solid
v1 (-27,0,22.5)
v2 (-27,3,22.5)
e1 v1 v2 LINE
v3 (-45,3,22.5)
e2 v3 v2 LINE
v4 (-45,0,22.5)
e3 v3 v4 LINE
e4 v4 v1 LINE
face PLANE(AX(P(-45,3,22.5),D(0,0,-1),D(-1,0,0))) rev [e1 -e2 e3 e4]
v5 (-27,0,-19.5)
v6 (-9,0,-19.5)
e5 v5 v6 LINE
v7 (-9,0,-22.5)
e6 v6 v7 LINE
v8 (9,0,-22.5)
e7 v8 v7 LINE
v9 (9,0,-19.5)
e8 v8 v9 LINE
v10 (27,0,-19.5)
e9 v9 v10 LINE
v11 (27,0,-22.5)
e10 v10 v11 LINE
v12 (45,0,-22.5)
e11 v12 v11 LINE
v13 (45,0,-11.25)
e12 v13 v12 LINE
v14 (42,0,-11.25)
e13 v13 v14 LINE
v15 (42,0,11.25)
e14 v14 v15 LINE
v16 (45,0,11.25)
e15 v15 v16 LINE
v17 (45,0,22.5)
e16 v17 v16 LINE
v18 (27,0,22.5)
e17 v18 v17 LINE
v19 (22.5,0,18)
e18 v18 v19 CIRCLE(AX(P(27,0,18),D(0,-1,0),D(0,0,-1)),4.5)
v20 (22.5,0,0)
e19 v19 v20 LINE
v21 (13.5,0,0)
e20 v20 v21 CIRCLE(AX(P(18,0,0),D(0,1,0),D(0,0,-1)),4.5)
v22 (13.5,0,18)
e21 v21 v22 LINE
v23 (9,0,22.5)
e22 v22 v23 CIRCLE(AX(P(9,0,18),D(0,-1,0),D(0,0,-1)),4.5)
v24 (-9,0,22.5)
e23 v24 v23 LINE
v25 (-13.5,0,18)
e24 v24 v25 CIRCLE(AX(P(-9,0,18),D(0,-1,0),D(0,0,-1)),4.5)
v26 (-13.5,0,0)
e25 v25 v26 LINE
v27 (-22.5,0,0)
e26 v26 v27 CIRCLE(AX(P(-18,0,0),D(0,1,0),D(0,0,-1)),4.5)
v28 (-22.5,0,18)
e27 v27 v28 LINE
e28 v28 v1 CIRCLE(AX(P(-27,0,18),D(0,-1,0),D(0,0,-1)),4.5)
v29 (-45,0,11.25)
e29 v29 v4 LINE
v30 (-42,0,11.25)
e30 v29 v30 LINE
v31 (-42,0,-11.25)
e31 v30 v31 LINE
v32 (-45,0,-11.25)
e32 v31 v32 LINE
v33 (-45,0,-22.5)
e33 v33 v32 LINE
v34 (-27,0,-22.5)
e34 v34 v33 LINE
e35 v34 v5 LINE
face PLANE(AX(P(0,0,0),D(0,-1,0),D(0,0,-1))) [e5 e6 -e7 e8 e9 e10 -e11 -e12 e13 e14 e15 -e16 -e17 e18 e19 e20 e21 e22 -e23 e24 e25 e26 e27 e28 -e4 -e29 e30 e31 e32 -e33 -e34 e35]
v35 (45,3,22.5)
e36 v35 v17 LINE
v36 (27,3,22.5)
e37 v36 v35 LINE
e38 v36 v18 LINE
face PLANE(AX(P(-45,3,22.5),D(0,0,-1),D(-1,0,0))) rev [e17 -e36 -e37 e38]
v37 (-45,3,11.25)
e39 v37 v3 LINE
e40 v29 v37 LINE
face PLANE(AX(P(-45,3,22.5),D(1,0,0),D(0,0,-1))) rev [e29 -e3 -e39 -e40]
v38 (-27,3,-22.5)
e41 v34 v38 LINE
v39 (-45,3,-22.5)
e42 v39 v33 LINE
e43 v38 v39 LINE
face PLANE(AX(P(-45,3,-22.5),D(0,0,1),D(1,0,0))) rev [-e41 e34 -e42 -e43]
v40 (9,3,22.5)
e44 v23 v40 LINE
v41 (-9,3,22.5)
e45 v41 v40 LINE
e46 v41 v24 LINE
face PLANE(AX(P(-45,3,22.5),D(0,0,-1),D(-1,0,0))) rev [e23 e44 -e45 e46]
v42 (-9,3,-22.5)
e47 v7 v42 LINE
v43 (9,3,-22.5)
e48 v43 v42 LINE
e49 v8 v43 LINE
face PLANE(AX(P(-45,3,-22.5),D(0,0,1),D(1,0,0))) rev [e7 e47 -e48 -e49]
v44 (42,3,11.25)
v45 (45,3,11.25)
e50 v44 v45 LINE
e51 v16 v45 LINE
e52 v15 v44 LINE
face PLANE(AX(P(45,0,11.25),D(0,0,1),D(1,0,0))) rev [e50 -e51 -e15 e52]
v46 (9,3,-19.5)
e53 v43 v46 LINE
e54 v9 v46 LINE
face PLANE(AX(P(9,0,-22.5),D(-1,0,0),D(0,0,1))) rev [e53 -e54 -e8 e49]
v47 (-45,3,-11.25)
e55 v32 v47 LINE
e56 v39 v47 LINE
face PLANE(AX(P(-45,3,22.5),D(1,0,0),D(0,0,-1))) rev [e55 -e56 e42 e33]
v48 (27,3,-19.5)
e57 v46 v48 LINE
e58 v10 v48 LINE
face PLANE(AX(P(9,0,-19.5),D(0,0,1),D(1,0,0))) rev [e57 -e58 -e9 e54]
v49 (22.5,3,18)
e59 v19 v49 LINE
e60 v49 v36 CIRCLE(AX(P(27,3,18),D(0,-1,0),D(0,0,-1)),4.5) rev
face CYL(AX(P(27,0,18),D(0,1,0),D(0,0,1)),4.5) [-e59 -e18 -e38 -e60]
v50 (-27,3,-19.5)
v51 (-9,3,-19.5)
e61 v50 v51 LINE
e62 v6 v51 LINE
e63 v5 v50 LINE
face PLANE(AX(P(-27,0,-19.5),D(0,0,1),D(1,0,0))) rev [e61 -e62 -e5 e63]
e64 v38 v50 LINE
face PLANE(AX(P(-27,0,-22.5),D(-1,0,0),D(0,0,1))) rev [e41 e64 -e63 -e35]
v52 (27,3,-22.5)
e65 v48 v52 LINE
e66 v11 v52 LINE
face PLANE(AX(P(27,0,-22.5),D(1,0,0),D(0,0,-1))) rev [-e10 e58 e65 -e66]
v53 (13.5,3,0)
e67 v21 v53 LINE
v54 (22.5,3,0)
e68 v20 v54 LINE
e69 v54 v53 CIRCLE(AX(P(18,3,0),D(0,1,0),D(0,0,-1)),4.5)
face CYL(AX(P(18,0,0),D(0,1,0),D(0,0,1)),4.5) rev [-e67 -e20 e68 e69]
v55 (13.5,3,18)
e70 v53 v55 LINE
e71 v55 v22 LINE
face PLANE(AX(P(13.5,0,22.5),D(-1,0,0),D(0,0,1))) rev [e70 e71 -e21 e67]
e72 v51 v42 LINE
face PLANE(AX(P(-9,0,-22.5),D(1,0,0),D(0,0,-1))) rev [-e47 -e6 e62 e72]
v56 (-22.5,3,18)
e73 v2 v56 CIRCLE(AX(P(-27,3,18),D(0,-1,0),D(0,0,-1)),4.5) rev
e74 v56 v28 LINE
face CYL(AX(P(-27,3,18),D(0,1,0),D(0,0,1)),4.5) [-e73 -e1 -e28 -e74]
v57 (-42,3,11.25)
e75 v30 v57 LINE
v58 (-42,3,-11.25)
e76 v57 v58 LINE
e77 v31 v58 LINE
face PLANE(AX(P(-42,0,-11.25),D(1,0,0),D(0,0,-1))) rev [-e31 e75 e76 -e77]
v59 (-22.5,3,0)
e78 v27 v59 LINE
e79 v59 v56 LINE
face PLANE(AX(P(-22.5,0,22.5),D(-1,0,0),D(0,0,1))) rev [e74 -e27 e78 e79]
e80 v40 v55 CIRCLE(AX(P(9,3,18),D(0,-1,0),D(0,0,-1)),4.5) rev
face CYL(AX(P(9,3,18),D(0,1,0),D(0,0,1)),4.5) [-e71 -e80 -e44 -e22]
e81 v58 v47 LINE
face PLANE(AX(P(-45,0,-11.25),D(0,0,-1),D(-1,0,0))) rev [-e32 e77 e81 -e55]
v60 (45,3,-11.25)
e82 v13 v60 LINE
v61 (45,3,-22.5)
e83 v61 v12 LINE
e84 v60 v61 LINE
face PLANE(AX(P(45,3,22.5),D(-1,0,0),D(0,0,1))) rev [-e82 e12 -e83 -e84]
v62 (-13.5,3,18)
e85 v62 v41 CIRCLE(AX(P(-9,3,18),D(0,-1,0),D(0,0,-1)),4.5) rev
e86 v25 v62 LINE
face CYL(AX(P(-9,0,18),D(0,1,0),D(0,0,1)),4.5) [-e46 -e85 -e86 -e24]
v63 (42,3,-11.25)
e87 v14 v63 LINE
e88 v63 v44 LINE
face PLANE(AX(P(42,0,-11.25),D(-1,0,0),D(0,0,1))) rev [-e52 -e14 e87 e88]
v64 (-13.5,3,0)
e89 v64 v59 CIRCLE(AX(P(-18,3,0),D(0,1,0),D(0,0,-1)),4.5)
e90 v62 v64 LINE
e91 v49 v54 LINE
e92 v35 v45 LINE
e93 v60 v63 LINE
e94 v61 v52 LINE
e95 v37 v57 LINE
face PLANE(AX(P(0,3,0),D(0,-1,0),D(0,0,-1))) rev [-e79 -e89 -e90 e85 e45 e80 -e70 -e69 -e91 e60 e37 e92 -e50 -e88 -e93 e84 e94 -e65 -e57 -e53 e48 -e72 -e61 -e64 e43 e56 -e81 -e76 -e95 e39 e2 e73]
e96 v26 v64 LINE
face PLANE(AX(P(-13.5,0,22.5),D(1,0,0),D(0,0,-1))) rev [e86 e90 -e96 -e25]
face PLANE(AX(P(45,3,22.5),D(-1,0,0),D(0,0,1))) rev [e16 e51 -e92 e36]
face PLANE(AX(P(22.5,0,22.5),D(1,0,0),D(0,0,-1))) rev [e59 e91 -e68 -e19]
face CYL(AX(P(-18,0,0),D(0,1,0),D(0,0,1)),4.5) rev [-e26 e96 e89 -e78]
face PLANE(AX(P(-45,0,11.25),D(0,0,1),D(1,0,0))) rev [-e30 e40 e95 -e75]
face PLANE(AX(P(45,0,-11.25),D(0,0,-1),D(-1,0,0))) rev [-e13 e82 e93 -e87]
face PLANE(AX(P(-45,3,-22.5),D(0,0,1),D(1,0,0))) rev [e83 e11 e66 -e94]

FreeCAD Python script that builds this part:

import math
import FreeCAD as App
import Part
import Sketcher

V = App.Vector
Q = App.Units.Quantity


def edges_at(feature, points):
    """Names of the edges that pass closest to the given points."""
    edges = feature.Shape.Edges
    near = lambda p: min(range(len(edges)), key=lambda i: edges[i].distToShape(Part.Vertex(*p))[0])
    return sorted({f"Edge{near(p) + 1}" for p in points})

doc = App.newDocument("Part")
body = doc.addObject("PartDesign::Body", "Body")

sketch1 = doc.addObject("Sketcher::SketchObject", "Sketch")
body.addObject(sketch1)
sketch1.AttachmentSupport = (doc.XZ_Plane, [""])
sketch1.MapMode = "FlatFace"
sketch1.addGeometry([
    Part.LineSegment(V(-45, -22, 0), V(-45, 22, 0)),
    Part.LineSegment(V(-45, 22, 0), V(45, 22, 0)),
    Part.LineSegment(V(45, 22, 0), V(45, -22, 0)),
    Part.LineSegment(V(45, -22, 0), V(-45, -22, 0)),
], False)
sketch1.addConstraint([
    Sketcher.Constraint("Coincident", 0, 2, 1, 1),
    Sketcher.Constraint("Coincident", 1, 2, 2, 1),
    Sketcher.Constraint("Coincident", 2, 2, 3, 1),
    Sketcher.Constraint("Coincident", 3, 2, 0, 1),
    Sketcher.Constraint("Vertical", 0),
    Sketcher.Constraint("Horizontal", 1),
    Sketcher.Constraint("Vertical", 2),
    Sketcher.Constraint("Horizontal", 3),
    Sketcher.Constraint("Symmetric", 0, 2, 2, 2, -1, 1),
    Sketcher.Constraint("DistanceX", 1, 1, 1, 2, Q("90 mm")),
    Sketcher.Constraint("DistanceY", 0, 1, 0, 2, Q("45 mm")),
])
pad1 = doc.addObject("PartDesign::Pad", "Pad")
body.addObject(pad1)
pad1.Profile = sketch1
pad1.Length = 3
pad1.Reversed = True

sketch2 = doc.addObject("Sketcher::SketchObject", "Sketch001")
body.addObject(sketch2)
sketch2.AttachmentSupport = (doc.XZ_Plane, [""])
sketch2.MapMode = "FlatFace"
sketch2.AttachmentOffset = App.Placement(V(0, 0, -3), App.Rotation())
sketch2.addGeometry([
    Part.LineSegment(V(-22.5, 22.5, 0), V(-13.5, 22.5, 0)),
    Part.LineSegment(V(-13.5, 22.5, 0), V(-13.5, 0, 0)),
    Part.ArcOfCircle(Part.Circle(V(-18, 0, 0), V(0, 0, 1), 4.5), math.radians(180), math.radians(360)),
    Part.LineSegment(V(-22.5, 0, 0), V(-22.5, 22.5, 0)),
    Part.LineSegment(V(13.5, 22.5, 0), V(22.5, 22.5, 0)),
    Part.LineSegment(V(22.5, 22.5, 0), V(22.5, 0, 0)),
    Part.ArcOfCircle(Part.Circle(V(18, 0, 0), V(0, 0, 1), 4.5), math.radians(180), math.radians(360)),
    Part.LineSegment(V(13.5, 0, 0), V(13.5, 22.5, 0)),
], False)
sketch2.addConstraint([
    Sketcher.Constraint("Coincident", 0, 2, 1, 1),
    Sketcher.Constraint("Tangent", 1, 2, 2, 2),
    Sketcher.Constraint("Tangent", 2, 1, 3, 1),
    Sketcher.Constraint("Coincident", 3, 2, 0, 1),
    Sketcher.Constraint("Coincident", 4, 2, 5, 1),
    Sketcher.Constraint("Tangent", 5, 2, 6, 2),
    Sketcher.Constraint("Tangent", 6, 1, 7, 1),
    Sketcher.Constraint("Coincident", 7, 2, 4, 1),
    Sketcher.Constraint("Horizontal", 0),
    Sketcher.Constraint("Vertical", 1),
    Sketcher.Constraint("Vertical", 3),
    Sketcher.Constraint("Horizontal", 4),
    Sketcher.Constraint("Vertical", 5),
    Sketcher.Constraint("Vertical", 7),
    Sketcher.Constraint("Equal", 2, 6),
    Sketcher.Constraint("Symmetric", 2, 3, 6, 3, -1, 1),
    Sketcher.Constraint("PointOnObject", 2, 3, -1),
    Sketcher.Constraint("Horizontal", 3, 2, 4, 2),
    Sketcher.Constraint("Radius", 2, Q("4.5 mm")),
    Sketcher.Constraint("DistanceY", 1, 2, 1, 1, Q("22.5 mm")),
    Sketcher.Constraint("DistanceX", 2, 3, -1, 1, Q("18 mm")),
])
pocket1 = doc.addObject("PartDesign::Pocket", "Pocket")
body.addObject(pocket1)
pocket1.Profile = sketch2
pocket1.Length = 3
pocket1.Reversed = True
doc.recompute()

fillet = doc.addObject("PartDesign::Fillet", "Fillet")
body.addObject(fillet)
fillet.Base = (pocket1, edges_at(pocket1, [
    (-22.5, 1.5, 22.5),
    (-13.5, 1.5, 22.5),
    (13.5, 1.5, 22.5),
    (22.5, 1.5, 22.5),
]))
fillet.Radius = 4.5

sketch3 = doc.addObject("Sketcher::SketchObject", "Sketch002")
body.addObject(sketch3)
sketch3.AttachmentSupport = (doc.XZ_Plane, [""])
sketch3.MapMode = "FlatFace"
sketch3.AttachmentOffset = App.Placement(V(0, 0, -3), App.Rotation())
sketch3.addGeometry([
    Part.LineSegment(V(-45, -11.2, 0), V(-45, 11.2, 0)),
    Part.LineSegment(V(-45, 11.2, 0), V(-42, 11.2, 0)),
    Part.LineSegment(V(-42, 11.2, 0), V(-42, -11.2, 0)),
    Part.LineSegment(V(-42, -11.2, 0), V(-45, -11.2, 0)),
    Part.LineSegment(V(-27, -22.5, 0), V(-27, -19.5, 0)),
    Part.LineSegment(V(-27, -19.5, 0), V(-9, -19.5, 0)),
    Part.LineSegment(V(-9, -19.5, 0), V(-9, -22.5, 0)),
    Part.LineSegment(V(-9, -22.5, 0), V(-27, -22.5, 0)),
    Part.LineSegment(V(9, -22.5, 0), V(9, -19.5, 0)),
    Part.LineSegment(V(9, -19.5, 0), V(27, -19.5, 0)),
    Part.LineSegment(V(27, -19.5, 0), V(27, -22.5, 0)),
    Part.LineSegment(V(27, -22.5, 0), V(9, -22.5, 0)),
    Part.LineSegment(V(42, -11.2, 0), V(42, 11.2, 0)),
    Part.LineSegment(V(42, 11.2, 0), V(45, 11.2, 0)),
    Part.LineSegment(V(45, 11.2, 0), V(45, -11.2, 0)),
    Part.LineSegment(V(45, -11.2, 0), V(42, -11.2, 0)),
], False)
sketch3.addConstraint([
    Sketcher.Constraint("Coincident", 0, 2, 1, 1),
    Sketcher.Constraint("Coincident", 1, 2, 2, 1),
    Sketcher.Constraint("Coincident", 2, 2, 3, 1),
    Sketcher.Constraint("Coincident", 3, 2, 0, 1),
    Sketcher.Constraint("Coincident", 4, 2, 5, 1),
    Sketcher.Constraint("Coincident", 5, 2, 6, 1),
    Sketcher.Constraint("Coincident", 6, 2, 7, 1),
    Sketcher.Constraint("Coincident", 7, 2, 4, 1),
    Sketcher.Constraint("Coincident", 8, 2, 9, 1),
    Sketcher.Constraint("Coincident", 9, 2, 10, 1),
    Sketcher.Constraint("Coincident", 10, 2, 11, 1),
    Sketcher.Constraint("Coincident", 11, 2, 8, 1),
    Sketcher.Constraint("Coincident", 12, 2, 13, 1),
    Sketcher.Constraint("Coincident", 13, 2, 14, 1),
    Sketcher.Constraint("Coincident", 14, 2, 15, 1),
    Sketcher.Constraint("Coincident", 15, 2, 12, 1),
    Sketcher.Constraint("Vertical", 0),
    Sketcher.Constraint("Horizontal", 1),
    Sketcher.Constraint("Vertical", 2),
    Sketcher.Constraint("Horizontal", 3),
    Sketcher.Constraint("Vertical", 4),
    Sketcher.Constraint("Horizontal", 5),
    Sketcher.Constraint("Vertical", 6),
    Sketcher.Constraint("Horizontal", 7),
    Sketcher.Constraint("Vertical", 8),
    Sketcher.Constraint("Horizontal", 9),
    Sketcher.Constraint("Vertical", 10),
    Sketcher.Constraint("Horizontal", 11),
    Sketcher.Constraint("Vertical", 12),
    Sketcher.Constraint("Horizontal", 13),
    Sketcher.Constraint("Vertical", 14),
    Sketcher.Constraint("Horizontal", 15),
    Sketcher.Constraint("Symmetric", 2, 2, 12, 2, -1, 1),
    Sketcher.Constraint("Symmetric", 0, 2, 14, 2, -1, 1),
    Sketcher.Constraint("Symmetric", 5, 2, 8, 2, -2),
    Sketcher.Constraint("Symmetric", 7, 2, 10, 2, -2),
    Sketcher.Constraint("Horizontal", 1, 2, 12, 2),
    Sketcher.Constraint("Equal", 15, 4),
    Sketcher.Constraint("DistanceX", 1, 1, 1, 2, Q("3 mm")),
    Sketcher.Constraint("DistanceX", 5, 1, 5, 2, Q("18 mm")),
    Sketcher.Constraint("DistanceY", 0, 1, 0, 2, Q("22.5 mm")),
    Sketcher.Constraint("DistanceX", 0, 2, -1, 1, Q("45 mm")),
    Sketcher.Constraint("DistanceX", 4, 2, -1, 1, Q("27 mm")),
    Sketcher.Constraint("DistanceY", 4, 2, -1, 1, Q("19.5 mm")),
])
pocket2 = doc.addObject("PartDesign::Pocket", "Pocket001")
body.addObject(pocket2)
pocket2.Profile = sketch3
pocket2.Length = 3
pocket2.Reversed = True

doc.recompute()
